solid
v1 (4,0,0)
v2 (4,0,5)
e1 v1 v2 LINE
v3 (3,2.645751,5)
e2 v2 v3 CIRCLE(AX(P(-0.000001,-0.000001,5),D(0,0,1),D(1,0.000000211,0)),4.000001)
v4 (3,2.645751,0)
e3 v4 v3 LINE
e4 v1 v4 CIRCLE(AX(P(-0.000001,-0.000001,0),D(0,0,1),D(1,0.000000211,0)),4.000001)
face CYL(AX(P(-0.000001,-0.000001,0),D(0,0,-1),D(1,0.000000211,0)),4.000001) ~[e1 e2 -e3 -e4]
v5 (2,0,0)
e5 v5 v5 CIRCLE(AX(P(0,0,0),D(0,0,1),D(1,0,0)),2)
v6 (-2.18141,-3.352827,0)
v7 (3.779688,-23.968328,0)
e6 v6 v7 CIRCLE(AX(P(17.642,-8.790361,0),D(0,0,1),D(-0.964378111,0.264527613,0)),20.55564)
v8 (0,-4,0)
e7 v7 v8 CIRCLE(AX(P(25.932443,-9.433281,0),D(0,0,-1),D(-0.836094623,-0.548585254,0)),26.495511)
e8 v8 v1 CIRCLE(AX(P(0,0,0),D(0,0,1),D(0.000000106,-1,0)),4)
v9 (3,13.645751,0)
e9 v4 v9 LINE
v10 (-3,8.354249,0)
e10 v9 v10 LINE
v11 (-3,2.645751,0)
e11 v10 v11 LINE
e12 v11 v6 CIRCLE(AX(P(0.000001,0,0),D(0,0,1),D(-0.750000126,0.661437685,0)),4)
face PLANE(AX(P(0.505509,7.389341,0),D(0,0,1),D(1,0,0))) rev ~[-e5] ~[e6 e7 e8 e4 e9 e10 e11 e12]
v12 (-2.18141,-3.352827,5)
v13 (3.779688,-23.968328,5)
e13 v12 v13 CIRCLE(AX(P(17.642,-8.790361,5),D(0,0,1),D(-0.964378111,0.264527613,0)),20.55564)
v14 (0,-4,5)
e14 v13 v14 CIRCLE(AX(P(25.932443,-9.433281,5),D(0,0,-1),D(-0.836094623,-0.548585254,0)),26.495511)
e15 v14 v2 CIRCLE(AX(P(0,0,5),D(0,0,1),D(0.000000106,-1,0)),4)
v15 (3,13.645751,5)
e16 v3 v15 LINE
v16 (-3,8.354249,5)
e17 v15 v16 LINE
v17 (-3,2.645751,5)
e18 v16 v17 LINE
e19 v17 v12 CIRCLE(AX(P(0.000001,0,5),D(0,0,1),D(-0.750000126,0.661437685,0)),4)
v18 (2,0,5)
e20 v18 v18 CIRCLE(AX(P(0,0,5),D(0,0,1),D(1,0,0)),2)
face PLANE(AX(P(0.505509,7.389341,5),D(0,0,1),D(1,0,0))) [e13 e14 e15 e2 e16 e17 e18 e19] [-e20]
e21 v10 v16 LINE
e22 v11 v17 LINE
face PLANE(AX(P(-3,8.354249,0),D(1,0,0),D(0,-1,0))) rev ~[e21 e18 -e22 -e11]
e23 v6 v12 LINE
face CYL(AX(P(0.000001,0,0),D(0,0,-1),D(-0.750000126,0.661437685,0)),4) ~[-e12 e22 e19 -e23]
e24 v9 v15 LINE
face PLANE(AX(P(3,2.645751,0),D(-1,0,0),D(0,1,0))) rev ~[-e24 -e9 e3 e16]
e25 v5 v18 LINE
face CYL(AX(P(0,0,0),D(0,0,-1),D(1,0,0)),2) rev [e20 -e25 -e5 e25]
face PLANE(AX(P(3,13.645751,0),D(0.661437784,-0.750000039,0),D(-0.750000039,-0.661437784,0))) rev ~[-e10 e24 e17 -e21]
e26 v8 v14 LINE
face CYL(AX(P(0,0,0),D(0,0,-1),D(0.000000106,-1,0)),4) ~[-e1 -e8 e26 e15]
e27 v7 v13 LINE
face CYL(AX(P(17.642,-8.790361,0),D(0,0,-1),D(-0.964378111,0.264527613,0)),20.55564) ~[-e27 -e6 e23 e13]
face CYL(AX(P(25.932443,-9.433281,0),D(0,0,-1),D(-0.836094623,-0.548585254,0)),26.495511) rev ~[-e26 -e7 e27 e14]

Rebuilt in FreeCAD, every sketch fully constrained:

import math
import FreeCAD as App
import Part
import Sketcher

V = App.Vector
Q = App.Units.Quantity

doc = App.newDocument("Part")
params = doc.addObject("Spreadsheet::Sheet", "Params")
for row, (alias, value) in enumerate([
    ("sketch1_diameter", "4 mm"),
    ("sketch1_radius", "4 mm"),
    ("sketch1_height", "11 mm"),
    ("sketch1_length", "8 mm"),
    ("pad1_length", "5 mm"),
], start=1):
    params.set(f"A{row}", alias)
    params.set(f"B{row}", "=" + value)
    params.setAlias(f"B{row}", alias)

body = doc.addObject("PartDesign::Body", "Body")

sketch1 = body.newObject("Sketcher::SketchObject", "Sketch")
sketch1.AttachmentSupport = (doc.getObject("XY_Plane"), [""])
sketch1.MapMode = "FlatFace"
sketch1.addGeometry([
    Part.LineSegment(V(3, 2.645751, 0), V(3, 13.645751, 0)),
    Part.LineSegment(V(3, 13.645751, 0), V(-3, 8.354249, 0)),
    Part.LineSegment(V(-3, 8.354249, 0), V(-3, 2.645751, 0)),
    Part.ArcOfCircle(Part.Circle(V(0.000001, 0, 0), V(0, 0, 1), 4), math.radians(138.590389), math.radians(236.951235)),
    Part.ArcOfCircle(Part.Circle(V(17.642, -8.790361, 0), V(0, 0, 1), 20.55564), math.radians(164.661115), math.radians(227.593982)),
    Part.ArcOfCircle(Part.Circle(V(25.932443, -9.433281, 0), V(0, 0, 1), 26.495511), math.radians(168.166742), math.radians(213.27001)),
    Part.ArcOfCircle(Part.Circle(V(0, 0, 0), V(0, 0, 1), 4), math.radians(-89.999994), math.radians(-0.000006)),
    Part.ArcOfCircle(Part.Circle(V(-0.000001, -0.000001, 0), V(0, 0, 1), 4.000001), math.radians(0.000012), math.radians(41.409615)),
    Part.Circle(V(0, 0, 0), V(0, 0, 1), 2),
], False)
sketch1.addConstraint([
    Sketcher.Constraint("Coincident", 0, 2, 1, 1),
    Sketcher.Constraint("Coincident", 1, 2, 2, 1),
    Sketcher.Constraint("Coincident", 2, 2, 3, 1),
    Sketcher.Constraint("Coincident", 3, 2, 4, 1),
    Sketcher.Constraint("Coincident", 4, 2, 5, 2),
    Sketcher.Constraint("Coincident", 5, 1, 6, 1),
    Sketcher.Constraint("Tangent", 6, 2, 7, 1),
    Sketcher.Constraint("Coincident", 7, 2, 0, 1),
    Sketcher.Constraint("Vertical", 0),
    Sketcher.Constraint("Vertical", 2),
    Sketcher.Constraint("Coincident", 3, 3, -1, 1),
    Sketcher.Constraint("Coincident", 6, 3, -1, 1),
    Sketcher.Constraint("Coincident", 8, 3, -1, 1),
    Sketcher.Constraint("Equal", 3, 6),
    Sketcher.Constraint("Equal", 6, 7),
    Sketcher.Constraint("PointOnObject", 5, 1, -2),
    Sketcher.Constraint("PointOnObject", 6, 2, -1),
    Sketcher.Constraint("Horizontal", 2, 2, 7, 2),
    Sketcher.Constraint("Diameter", 8, Q("4 mm")),
    Sketcher.Constraint("Radius", 3, Q("4 mm")),
    Sketcher.Constraint("DistanceY", 0, 1, 0, 2, Q("11 mm")),
    Sketcher.Constraint("Distance", 1, Q("8 mm")),
    Sketcher.Constraint("DistanceX", -1, 1, 0, 2, Q("3 mm")),
    Sketcher.Constraint("Radius", 4, Q("20.55564 mm")),
    Sketcher.Constraint("Radius", 5, Q("26.495511 mm")),
    Sketcher.Constraint("DistanceX", -1, 1, 4, 3, Q("17.642 mm")),
    Sketcher.Constraint("DistanceX", 3, 2, 4, 2, Q("5.961098 mm")),
    Sketcher.Constraint("DistanceY", 4, 2, 3, 2, Q("20.615501 mm")),
])
sketch1.setExpression("Constraints[18]", "Params.sketch1_diameter")
sketch1.setExpression("Constraints[19]", "Params.sketch1_radius")
sketch1.setExpression("Constraints[20]", "Params.sketch1_height")
sketch1.setExpression("Constraints[21]", "Params.sketch1_length")
pad1 = body.newObject("PartDesign::Pad", "Pad")
pad1.Profile = sketch1
pad1.setExpression("Length", "Params.pad1_length")

doc.recompute()
